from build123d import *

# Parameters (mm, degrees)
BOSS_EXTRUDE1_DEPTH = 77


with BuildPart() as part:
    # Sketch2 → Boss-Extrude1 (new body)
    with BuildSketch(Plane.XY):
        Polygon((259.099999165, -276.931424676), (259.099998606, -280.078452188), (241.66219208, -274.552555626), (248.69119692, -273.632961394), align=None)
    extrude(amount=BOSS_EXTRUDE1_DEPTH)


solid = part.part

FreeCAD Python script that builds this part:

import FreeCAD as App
import Part
import Sketcher

doc = App.newDocument("Part")
body = doc.addObject("PartDesign::Body", "Body")

sketch1 = doc.addObject("Sketcher::SketchObject", "Sketch")
body.addObject(sketch1)
sketch1.AttachmentSupport = (doc.XY_Plane, [""])
sketch1.MapMode = "FlatFace"
sketch1.addGeometry([
    Part.LineSegment(App.Vector(259.099999, -280.078452, 0), App.Vector(259.099999, -276.931425, 0)),
    Part.LineSegment(App.Vector(259.099999, -276.931425, 0), App.Vector(248.691197, -273.632961, 0)),
    Part.LineSegment(App.Vector(248.691197, -273.632961, 0), App.Vector(241.662192, -274.552556, 0)),
    Part.LineSegment(App.Vector(241.662192, -274.552556, 0), App.Vector(259.099999, -280.078452, 0)),
], False)
sketch1.addConstraint([
    Sketcher.Constraint("Coincident", 0, 2, 1, 1),
    Sketcher.Constraint("Coincident", 1, 2, 2, 1),
    Sketcher.Constraint("Coincident", 2, 2, 3, 1),
    Sketcher.Constraint("Coincident", 3, 2, 0, 1),
    Sketcher.Constraint("Vertical", 0),
    Sketcher.Constraint("Parallel", 1, 3),
    Sketcher.Constraint("DistanceX", -1, 1, 0, 2, 259.099999),
    Sketcher.Constraint("DistanceX", 1, 2, 3, 2, 10.408802),
    Sketcher.Constraint("Distance", 1, 10.91893),
    Sketcher.Constraint("Distance", 3, 18.29242),
    Sketcher.Constraint("DistanceY", 0, 1, 0, 2, 3.147028),
    Sketcher.Constraint("DistanceY", 1, 2, -1, 1, 273.632961),
])
pad1 = doc.addObject("PartDesign::Pad", "Pad")
body.addObject(pad1)
pad1.Profile = sketch1
pad1.Length = 77

doc.recompute()
